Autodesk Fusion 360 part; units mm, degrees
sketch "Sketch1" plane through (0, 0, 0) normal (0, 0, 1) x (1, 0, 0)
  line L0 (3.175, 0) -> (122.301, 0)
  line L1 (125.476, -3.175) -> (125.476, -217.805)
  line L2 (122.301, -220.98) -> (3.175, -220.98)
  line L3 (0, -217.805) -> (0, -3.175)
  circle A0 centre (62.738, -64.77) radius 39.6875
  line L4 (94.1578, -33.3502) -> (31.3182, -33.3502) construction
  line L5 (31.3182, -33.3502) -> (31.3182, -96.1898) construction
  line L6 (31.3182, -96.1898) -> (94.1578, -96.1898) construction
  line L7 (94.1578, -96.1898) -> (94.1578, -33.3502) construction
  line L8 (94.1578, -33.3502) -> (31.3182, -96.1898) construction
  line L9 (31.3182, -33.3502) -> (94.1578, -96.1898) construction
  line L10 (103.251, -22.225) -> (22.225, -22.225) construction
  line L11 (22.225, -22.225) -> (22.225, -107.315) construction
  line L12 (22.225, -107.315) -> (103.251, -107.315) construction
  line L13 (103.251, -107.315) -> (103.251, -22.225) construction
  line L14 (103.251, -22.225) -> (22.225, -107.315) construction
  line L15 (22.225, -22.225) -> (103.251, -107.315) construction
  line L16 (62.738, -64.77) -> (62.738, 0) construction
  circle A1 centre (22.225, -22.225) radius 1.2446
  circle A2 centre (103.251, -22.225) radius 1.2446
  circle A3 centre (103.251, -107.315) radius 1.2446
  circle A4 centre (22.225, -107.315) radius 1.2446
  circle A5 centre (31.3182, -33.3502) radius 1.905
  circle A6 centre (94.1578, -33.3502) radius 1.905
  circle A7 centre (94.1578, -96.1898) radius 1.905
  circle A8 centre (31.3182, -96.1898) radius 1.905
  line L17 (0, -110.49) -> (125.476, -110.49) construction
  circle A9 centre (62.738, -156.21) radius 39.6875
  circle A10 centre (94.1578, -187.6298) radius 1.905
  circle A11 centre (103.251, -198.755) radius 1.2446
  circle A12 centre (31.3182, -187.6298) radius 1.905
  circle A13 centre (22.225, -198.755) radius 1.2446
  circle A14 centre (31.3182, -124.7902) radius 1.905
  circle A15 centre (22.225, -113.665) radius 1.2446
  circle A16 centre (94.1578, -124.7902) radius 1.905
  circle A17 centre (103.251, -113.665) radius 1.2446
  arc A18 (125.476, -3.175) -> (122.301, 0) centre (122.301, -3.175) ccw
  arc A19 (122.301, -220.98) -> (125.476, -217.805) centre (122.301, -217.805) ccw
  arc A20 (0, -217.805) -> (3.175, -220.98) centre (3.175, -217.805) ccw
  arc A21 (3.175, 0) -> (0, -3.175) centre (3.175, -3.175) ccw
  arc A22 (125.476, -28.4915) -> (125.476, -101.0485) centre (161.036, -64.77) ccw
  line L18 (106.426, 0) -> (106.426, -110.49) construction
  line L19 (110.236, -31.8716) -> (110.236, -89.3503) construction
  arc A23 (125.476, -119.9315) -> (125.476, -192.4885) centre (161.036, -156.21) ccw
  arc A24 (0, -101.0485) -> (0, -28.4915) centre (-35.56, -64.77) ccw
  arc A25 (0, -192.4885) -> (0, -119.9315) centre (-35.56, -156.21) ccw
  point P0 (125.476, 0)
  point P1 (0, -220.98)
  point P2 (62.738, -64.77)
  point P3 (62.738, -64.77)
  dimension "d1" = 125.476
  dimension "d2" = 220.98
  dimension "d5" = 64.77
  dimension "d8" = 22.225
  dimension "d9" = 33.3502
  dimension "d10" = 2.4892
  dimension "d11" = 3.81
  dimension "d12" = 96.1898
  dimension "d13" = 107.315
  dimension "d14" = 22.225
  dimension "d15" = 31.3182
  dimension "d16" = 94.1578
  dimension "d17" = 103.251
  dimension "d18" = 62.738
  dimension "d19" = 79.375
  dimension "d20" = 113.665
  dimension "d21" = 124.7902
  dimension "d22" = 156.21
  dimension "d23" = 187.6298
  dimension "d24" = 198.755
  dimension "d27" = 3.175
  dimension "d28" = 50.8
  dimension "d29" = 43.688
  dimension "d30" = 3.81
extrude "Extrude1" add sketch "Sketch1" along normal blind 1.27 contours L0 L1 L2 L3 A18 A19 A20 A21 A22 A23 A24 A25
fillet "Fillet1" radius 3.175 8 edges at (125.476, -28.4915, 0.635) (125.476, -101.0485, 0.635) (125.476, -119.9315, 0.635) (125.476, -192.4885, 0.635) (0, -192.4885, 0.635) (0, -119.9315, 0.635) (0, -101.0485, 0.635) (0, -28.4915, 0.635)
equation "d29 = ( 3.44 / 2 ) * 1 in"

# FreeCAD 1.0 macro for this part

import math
import FreeCAD as App
import Part
import Sketcher
Q = App.Units.Quantity


def edges_at(feature, points):
    """Names of the edges that pass closest to the given points."""
    edges = feature.Shape.Edges
    near = lambda p: min(range(len(edges)), key=lambda i: edges[i].distToShape(Part.Vertex(*p))[0])
    return sorted({f"Edge{near(p) + 1}" for p in points})

doc = App.newDocument("Part")
body = doc.addObject("PartDesign::Body", "Body")

# Sketch on XY plane
sketch1 = doc.addObject("Sketcher::SketchObject", "Sketch")
body.addObject(sketch1)
sketch1.AttachmentSupport = (doc.XY_Plane, [""])
sketch1.MapMode = "FlatFace"
sketch1.addGeometry([
    Part.LineSegment(App.Vector(122.3, 0, 0), App.Vector(3.2, 0, 0)),  # 0
    Part.ArcOfCircle(Part.Circle(App.Vector(3.2, -3.2, 0), App.Vector(0, 0, 1), 3.2), math.radians(90), math.radians(180)),  # 1
    Part.LineSegment(App.Vector(0, -3.2, 0), App.Vector(0, -28.5, 0)),  # 2
    Part.ArcOfCircle(Part.Circle(App.Vector(-35.6, -64.8, 0), App.Vector(0, 0, 1), 50.8), math.radians(-46), math.radians(46)),  # 3
    Part.LineSegment(App.Vector(0, -101, 0), App.Vector(0, -119.9, 0)),  # 4
    Part.ArcOfCircle(Part.Circle(App.Vector(-35.6, -156.2, 0), App.Vector(0, 0, 1), 50.8), math.radians(-46), math.radians(46)),  # 5
    Part.LineSegment(App.Vector(0, -192.5, 0), App.Vector(0, -217.8, 0)),  # 6
    Part.ArcOfCircle(Part.Circle(App.Vector(3.2, -217.8, 0), App.Vector(0, 0, 1), 3.2), math.radians(180), math.radians(270)),  # 7
    Part.LineSegment(App.Vector(3.2, -221, 0), App.Vector(122.3, -221, 0)),  # 8
    Part.ArcOfCircle(Part.Circle(App.Vector(122.3, -217.8, 0), App.Vector(0, 0, 1), 3.2), math.radians(-90), math.radians(0)),  # 9
    Part.LineSegment(App.Vector(125.5, -217.8, 0), App.Vector(125.5, -192.5, 0)),  # 10
    Part.ArcOfCircle(Part.Circle(App.Vector(161, -156.2, 0), App.Vector(0, 0, 1), 50.8), math.radians(134), math.radians(226)),  # 11
    Part.LineSegment(App.Vector(125.5, -119.9, 0), App.Vector(125.5, -101, 0)),  # 12
    Part.ArcOfCircle(Part.Circle(App.Vector(161, -64.8, 0), App.Vector(0, 0, 1), 50.8), math.radians(134), math.radians(226)),  # 13
    Part.LineSegment(App.Vector(125.5, -28.5, 0), App.Vector(125.5, -3.2, 0)),  # 14
    Part.ArcOfCircle(Part.Circle(App.Vector(122.3, -3.2, 0), App.Vector(0, 0, 1), 3.2), math.radians(0), math.radians(90)),  # 15
    Part.Circle(App.Vector(22.2, -198.8, 0), App.Vector(0, 0, 1), 1.2),  # 16
    Part.Circle(App.Vector(31.3, -187.6, 0), App.Vector(0, 0, 1), 1.9),  # 17
    Part.Circle(App.Vector(31.3, -124.8, 0), App.Vector(0, 0, 1), 1.9),  # 18
    Part.Circle(App.Vector(22.2, -113.7, 0), App.Vector(0, 0, 1), 1.2),  # 19
    Part.Circle(App.Vector(103.3, -198.8, 0), App.Vector(0, 0, 1), 1.2),  # 20
    Part.Circle(App.Vector(94.2, -187.6, 0), App.Vector(0, 0, 1), 1.9),  # 21
    Part.Circle(App.Vector(62.7, -156.2, 0), App.Vector(0, 0, 1), 39.7),  # 22
    Part.Circle(App.Vector(94.2, -124.8, 0), App.Vector(0, 0, 1), 1.9),  # 23
    Part.Circle(App.Vector(103.3, -113.7, 0), App.Vector(0, 0, 1), 1.2),  # 24
    Part.Circle(App.Vector(22.2, -107.3, 0), App.Vector(0, 0, 1), 1.2),  # 25
    Part.Circle(App.Vector(31.3, -96.2, 0), App.Vector(0, 0, 1), 1.9),  # 26
    Part.Circle(App.Vector(31.3, -33.4, 0), App.Vector(0, 0, 1), 1.9),  # 27
    Part.Circle(App.Vector(22.2, -22.2, 0), App.Vector(0, 0, 1), 1.2),  # 28
    Part.Circle(App.Vector(62.7, -64.8, 0), App.Vector(0, 0, 1), 39.7),  # 29
    Part.Circle(App.Vector(103.3, -107.3, 0), App.Vector(0, 0, 1), 1.2),  # 30
    Part.Circle(App.Vector(94.2, -96.2, 0), App.Vector(0, 0, 1), 1.9),  # 31
    Part.Circle(App.Vector(94.2, -33.4, 0), App.Vector(0, 0, 1), 1.9),  # 32
    Part.Circle(App.Vector(103.3, -22.2, 0), App.Vector(0, 0, 1), 1.2),  # 33
], False)
sketch1.addConstraint([
    Sketcher.Constraint("Tangent", 0, 2, 1, 1),
    Sketcher.Constraint("Tangent", 1, 2, 2, 1),
    Sketcher.Constraint("Coincident", 2, 2, 3, 2),
    Sketcher.Constraint("Coincident", 3, 1, 4, 1),
    Sketcher.Constraint("Coincident", 4, 2, 5, 2),
    Sketcher.Constraint("Coincident", 5, 1, 6, 1),
    Sketcher.Constraint("Tangent", 6, 2, 7, 1),
    Sketcher.Constraint("Tangent", 7, 2, 8, 1),
    Sketcher.Constraint("Tangent", 8, 2, 9, 1),
    Sketcher.Constraint("Tangent", 9, 2, 10, 1),
    Sketcher.Constraint("Coincident", 10, 2, 11, 2),
    Sketcher.Constraint("Coincident", 11, 1, 12, 1),
    Sketcher.Constraint("Coincident", 12, 2, 13, 2),
    Sketcher.Constraint("Coincident", 13, 1, 14, 1),
    Sketcher.Constraint("Tangent", 14, 2, 15, 1),
    Sketcher.Constraint("Tangent", 15, 2, 0, 1),
    Sketcher.Constraint("Horizontal", 0),
    Sketcher.Constraint("Vertical", 2),
    Sketcher.Constraint("Vertical", 4),
    Sketcher.Constraint("Vertical", 6),
    Sketcher.Constraint("Horizontal", 8),
    Sketcher.Constraint("Vertical", 10),
    Sketcher.Constraint("Vertical", 12),
    Sketcher.Constraint("Vertical", 14),
    Sketcher.Constraint("Equal", 3, 5),
    Sketcher.Constraint("Equal", 1, 7),
    Sketcher.Constraint("Equal", 7, 9),
    Sketcher.Constraint("Equal", 5, 11),
    Sketcher.Constraint("Equal", 11, 13),
    Sketcher.Constraint("Equal", 9, 15),
    Sketcher.Constraint("Equal", 17, 18),
    Sketcher.Constraint("Equal", 16, 19),
    Sketcher.Constraint("Equal", 19, 20),
    Sketcher.Constraint("Equal", 18, 21),
    Sketcher.Constraint("Equal", 21, 23),
    Sketcher.Constraint("Equal", 20, 24),
    Sketcher.Constraint("Equal", 24, 25),
    Sketcher.Constraint("Equal", 23, 26),
    Sketcher.Constraint("Equal", 26, 27),
    Sketcher.Constraint("Equal", 25, 28),
    Sketcher.Constraint("Equal", 22, 29),
    Sketcher.Constraint("Equal", 28, 30),
    Sketcher.Constraint("Equal", 27, 31),
    Sketcher.Constraint("Equal", 31, 32),
    Sketcher.Constraint("Equal", 30, 33),
    Sketcher.Constraint("PointOnObject", 0, 2, -1),
    Sketcher.Constraint("PointOnObject", 1, 2, -2),
    Sketcher.Constraint("PointOnObject", 3, 1, -2),
    Sketcher.Constraint("PointOnObject", 5, 1, -2),
    Sketcher.Constraint("Horizontal", 5, 3, 11, 3),
    Sketcher.Constraint("Horizontal", 3, 3, 13, 3),
    Sketcher.Constraint("Horizontal", 16, 3, 20, 3),
    Sketcher.Constraint("Horizontal", 17, 3, 21, 3),
    Sketcher.Constraint("Horizontal", 11, 3, 22, 3),
    Sketcher.Constraint("Horizontal", 18, 3, 23, 3),
    Sketcher.Constraint("Horizontal", 19, 3, 24, 3),
    Sketcher.Constraint("Horizontal", 13, 3, 29, 3),
    Sketcher.Constraint("Horizontal", 25, 3, 30, 3),
    Sketcher.Constraint("Horizontal", 26, 3, 31, 3),
    Sketcher.Constraint("Horizontal", 27, 3, 32, 3),
    Sketcher.Constraint("Horizontal", 28, 3, 33, 3),
    Sketcher.Constraint("Horizontal", 5, 1, 10, 2),
    Sketcher.Constraint("Horizontal", 4, 2, 11, 1),
    Sketcher.Constraint("Horizontal", 3, 1, 12, 2),
    Sketcher.Constraint("Horizontal", 2, 2, 13, 1),
    Sketcher.Constraint("Vertical", 3, 3, 5, 3),
    Sketcher.Constraint("Vertical", 17, 3, 18, 3),
    Sketcher.Constraint("Vertical", 16, 3, 19, 3),
    Sketcher.Constraint("Vertical", 21, 3, 23, 3),
    Sketcher.Constraint("Vertical", 20, 3, 24, 3),
    Sketcher.Constraint("Vertical", 19, 3, 25, 3),
    Sketcher.Constraint("Vertical", 18, 3, 26, 3),
    Sketcher.Constraint("Vertical", 26, 3, 27, 3),
    Sketcher.Constraint("Vertical", 25, 3, 28, 3),
    Sketcher.Constraint("Vertical", 22, 3, 29, 3),
    Sketcher.Constraint("Vertical", 24, 3, 30, 3),
    Sketcher.Constraint("Vertical", 23, 3, 31, 3),
    Sketcher.Constraint("Vertical", 31, 3, 32, 3),
    Sketcher.Constraint("Vertical", 30, 3, 33, 3),
    Sketcher.Constraint("Equal", 2, 6),
    Sketcher.Constraint("Radius", 3, Q("2 in")),
    Sketcher.Constraint("Diameter", 17, Q("0.15 in")),
    Sketcher.Constraint("Diameter", 16, Q("0.098 in")),
    Sketcher.Constraint("Diameter", 22, Q("3.125 in")),
    Sketcher.Constraint("Radius", 1, Q("0.125 in")),
    Sketcher.Constraint("DistanceY", 7, 2, -1, 1, Q("8.7 in")),
    Sketcher.Constraint("DistanceY", 3, 3, -1, 1, Q("2.55 in")),
    Sketcher.Constraint("DistanceX", -1, 1, 22, 3, Q("2.47 in")),
    Sketcher.Constraint("DistanceX", -1, 1, 9, 2, Q("4.94 in")),
    Sketcher.Constraint("DistanceX", -1, 1, 16, 3, Q("0.875 in")),
    Sketcher.Constraint("DistanceY", 16, 3, -1, 1, Q("7.825 in")),
    Sketcher.Constraint("DistanceX", -1, 1, 17, 3, Q("1.233 in")),
    Sketcher.Constraint("DistanceY", 17, 3, -1, 1, Q("7.387 in")),
    Sketcher.Constraint("DistanceY", 18, 3, -1, 1, Q("4.913 in")),
    Sketcher.Constraint("DistanceY", 19, 3, -1, 1, Q("4.475 in")),
    Sketcher.Constraint("DistanceX", -1, 1, 20, 3, Q("4.065 in")),
    Sketcher.Constraint("DistanceX", -1, 1, 21, 3, Q("3.707 in")),
    Sketcher.Constraint("DistanceY", 25, 3, -1, 1, Q("4.225 in")),
    Sketcher.Constraint("DistanceY", 26, 3, -1, 1, Q("3.787 in")),
    Sketcher.Constraint("DistanceY", 27, 3, -1, 1, Q("1.313 in")),
    Sketcher.Constraint("DistanceY", 28, 3, -1, 1, Q("0.875 in")),
    Sketcher.Constraint("DistanceX", 3, 3, -1, 1, Q("1.4 in")),
])
pad1 = doc.addObject("PartDesign::Pad", "Pad")
body.addObject(pad1)
pad1.Profile = sketch1
pad1.Length = Q("0.05 in")
doc.recompute()

fillet = doc.addObject("PartDesign::Fillet", "Fillet")
body.addObject(fillet)
fillet.Base = (pad1, edges_at(pad1, [
    (125.476, -28.491, 0.635),
    (125.476, -101.049, 0.635),
    (125.476, -119.931, 0.635),
    (125.476, -192.488, 0.635),
    (0, -192.488, 0.635),
    (0, -119.931, 0.635),
    (0, -101.049, 0.635),
    (0, -28.491, 0.635),
]))
fillet.Radius = Q("0.125 in")

doc.recompute()
